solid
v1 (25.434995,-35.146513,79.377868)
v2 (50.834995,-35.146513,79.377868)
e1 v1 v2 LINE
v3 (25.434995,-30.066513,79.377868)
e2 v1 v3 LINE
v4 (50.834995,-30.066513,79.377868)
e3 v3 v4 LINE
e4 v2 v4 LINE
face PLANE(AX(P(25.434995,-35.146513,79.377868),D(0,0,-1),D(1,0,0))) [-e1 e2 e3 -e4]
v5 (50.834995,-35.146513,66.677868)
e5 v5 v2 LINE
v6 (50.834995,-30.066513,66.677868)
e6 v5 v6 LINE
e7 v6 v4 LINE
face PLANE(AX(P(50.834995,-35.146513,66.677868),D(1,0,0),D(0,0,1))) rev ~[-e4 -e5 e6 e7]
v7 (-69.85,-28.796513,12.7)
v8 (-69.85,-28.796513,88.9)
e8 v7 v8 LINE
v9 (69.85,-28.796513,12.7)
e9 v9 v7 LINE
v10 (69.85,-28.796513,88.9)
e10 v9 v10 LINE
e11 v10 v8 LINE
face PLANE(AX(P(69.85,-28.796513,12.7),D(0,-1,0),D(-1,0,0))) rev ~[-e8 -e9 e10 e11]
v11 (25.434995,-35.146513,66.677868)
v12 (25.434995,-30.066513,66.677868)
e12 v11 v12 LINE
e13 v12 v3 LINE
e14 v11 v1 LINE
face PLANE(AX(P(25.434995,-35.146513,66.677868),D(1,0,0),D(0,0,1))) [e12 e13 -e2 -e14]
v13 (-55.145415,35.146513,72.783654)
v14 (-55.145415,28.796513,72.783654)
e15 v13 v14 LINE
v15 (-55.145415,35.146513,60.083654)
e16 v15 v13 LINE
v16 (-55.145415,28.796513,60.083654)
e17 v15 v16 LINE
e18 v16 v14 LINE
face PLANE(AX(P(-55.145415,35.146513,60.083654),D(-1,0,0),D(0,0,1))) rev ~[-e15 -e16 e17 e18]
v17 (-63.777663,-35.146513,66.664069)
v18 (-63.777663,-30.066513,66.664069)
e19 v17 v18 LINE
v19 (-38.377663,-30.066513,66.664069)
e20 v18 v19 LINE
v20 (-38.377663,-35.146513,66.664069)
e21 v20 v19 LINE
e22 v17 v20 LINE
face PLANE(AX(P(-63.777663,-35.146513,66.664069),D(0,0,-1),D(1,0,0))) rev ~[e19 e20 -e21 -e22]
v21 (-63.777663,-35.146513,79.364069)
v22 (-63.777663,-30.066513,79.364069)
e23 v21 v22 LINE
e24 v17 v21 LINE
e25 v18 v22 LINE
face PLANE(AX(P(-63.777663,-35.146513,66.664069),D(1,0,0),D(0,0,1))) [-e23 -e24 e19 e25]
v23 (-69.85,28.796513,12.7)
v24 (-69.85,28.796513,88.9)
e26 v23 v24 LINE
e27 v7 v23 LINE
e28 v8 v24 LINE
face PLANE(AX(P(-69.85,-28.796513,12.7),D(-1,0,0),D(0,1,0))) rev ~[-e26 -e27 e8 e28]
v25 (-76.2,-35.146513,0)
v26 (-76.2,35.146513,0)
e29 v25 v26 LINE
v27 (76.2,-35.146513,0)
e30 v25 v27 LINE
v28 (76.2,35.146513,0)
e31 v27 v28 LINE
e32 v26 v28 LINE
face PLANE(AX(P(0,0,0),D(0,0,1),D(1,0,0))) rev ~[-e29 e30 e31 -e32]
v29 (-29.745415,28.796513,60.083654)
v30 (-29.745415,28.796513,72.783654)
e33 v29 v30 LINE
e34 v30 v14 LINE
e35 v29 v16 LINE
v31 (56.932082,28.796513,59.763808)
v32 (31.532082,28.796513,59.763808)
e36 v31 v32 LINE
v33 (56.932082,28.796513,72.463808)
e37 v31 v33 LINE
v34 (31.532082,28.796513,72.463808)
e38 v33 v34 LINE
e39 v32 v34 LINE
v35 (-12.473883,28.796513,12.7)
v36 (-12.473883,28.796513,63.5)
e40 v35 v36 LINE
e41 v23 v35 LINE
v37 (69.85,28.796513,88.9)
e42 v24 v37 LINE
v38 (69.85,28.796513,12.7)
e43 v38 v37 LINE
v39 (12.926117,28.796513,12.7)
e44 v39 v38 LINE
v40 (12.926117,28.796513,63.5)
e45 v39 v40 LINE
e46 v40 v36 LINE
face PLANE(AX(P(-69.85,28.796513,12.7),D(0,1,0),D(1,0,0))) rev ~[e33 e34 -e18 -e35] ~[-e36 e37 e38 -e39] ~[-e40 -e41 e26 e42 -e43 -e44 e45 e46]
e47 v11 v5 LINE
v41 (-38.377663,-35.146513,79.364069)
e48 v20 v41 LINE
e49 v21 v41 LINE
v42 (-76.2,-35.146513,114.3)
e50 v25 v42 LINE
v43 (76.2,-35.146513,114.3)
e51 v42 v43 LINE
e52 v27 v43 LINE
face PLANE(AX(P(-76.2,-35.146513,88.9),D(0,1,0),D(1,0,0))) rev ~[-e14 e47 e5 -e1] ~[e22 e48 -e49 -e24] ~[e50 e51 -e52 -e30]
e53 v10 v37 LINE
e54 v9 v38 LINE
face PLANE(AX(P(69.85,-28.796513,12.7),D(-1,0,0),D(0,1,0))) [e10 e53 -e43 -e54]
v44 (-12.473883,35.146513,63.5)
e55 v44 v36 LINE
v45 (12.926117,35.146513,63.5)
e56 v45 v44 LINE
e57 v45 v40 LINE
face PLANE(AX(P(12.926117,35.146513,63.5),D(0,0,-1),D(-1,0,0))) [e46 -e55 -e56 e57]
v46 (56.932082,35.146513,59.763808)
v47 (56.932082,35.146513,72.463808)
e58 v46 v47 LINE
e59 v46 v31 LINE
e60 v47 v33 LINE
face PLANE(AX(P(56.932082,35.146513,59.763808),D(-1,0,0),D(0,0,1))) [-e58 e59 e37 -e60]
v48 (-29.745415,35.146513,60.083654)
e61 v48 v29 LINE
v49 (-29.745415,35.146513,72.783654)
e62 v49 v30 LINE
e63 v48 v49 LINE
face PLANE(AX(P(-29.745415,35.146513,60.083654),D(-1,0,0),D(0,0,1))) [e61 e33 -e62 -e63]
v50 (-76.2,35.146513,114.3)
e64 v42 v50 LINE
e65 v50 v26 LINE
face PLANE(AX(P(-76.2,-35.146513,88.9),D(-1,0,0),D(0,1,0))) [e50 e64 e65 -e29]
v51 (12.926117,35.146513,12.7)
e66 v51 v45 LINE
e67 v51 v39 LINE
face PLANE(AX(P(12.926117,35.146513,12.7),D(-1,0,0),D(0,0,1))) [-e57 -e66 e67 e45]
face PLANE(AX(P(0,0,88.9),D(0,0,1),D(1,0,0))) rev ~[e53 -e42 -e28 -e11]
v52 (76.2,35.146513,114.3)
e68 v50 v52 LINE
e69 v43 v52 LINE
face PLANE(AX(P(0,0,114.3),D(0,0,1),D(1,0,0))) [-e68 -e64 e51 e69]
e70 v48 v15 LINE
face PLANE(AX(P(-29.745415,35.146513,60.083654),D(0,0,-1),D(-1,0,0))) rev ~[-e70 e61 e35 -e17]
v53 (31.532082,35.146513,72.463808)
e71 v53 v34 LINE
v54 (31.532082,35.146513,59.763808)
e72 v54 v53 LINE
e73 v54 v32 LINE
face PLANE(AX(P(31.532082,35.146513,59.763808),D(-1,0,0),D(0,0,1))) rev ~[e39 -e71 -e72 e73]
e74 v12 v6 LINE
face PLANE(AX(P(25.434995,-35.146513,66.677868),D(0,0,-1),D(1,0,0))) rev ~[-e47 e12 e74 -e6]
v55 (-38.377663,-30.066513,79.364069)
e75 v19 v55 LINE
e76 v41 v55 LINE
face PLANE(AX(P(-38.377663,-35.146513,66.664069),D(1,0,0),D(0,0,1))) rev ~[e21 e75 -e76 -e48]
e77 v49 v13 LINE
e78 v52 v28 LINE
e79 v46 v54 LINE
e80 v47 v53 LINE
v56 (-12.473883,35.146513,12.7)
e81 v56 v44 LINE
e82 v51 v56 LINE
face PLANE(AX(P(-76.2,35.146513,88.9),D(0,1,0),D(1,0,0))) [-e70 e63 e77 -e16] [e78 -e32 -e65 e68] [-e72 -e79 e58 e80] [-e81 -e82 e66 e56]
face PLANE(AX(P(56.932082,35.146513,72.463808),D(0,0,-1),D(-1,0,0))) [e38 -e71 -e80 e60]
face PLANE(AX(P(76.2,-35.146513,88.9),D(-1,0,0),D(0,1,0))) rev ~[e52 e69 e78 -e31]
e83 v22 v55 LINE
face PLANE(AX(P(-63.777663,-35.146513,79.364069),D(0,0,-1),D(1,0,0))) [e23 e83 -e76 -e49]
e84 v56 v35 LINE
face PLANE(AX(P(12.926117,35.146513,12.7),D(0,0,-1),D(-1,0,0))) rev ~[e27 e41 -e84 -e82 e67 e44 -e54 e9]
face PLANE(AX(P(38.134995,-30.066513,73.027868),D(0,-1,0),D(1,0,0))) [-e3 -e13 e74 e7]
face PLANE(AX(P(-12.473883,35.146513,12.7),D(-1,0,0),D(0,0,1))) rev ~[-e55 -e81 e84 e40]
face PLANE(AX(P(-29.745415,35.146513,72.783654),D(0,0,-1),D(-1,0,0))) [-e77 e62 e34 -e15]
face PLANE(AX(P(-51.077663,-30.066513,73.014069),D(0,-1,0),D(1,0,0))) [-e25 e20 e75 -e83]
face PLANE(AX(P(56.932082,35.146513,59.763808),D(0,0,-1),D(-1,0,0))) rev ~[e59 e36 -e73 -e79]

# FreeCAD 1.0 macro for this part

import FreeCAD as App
import Part
import Sketcher
from FreeCAD import Vector
Q = App.Units.Quantity

doc = App.newDocument("Part")
body = doc.addObject("PartDesign::Body", "Body")

sketch1 = body.newObject("Sketcher::SketchObject", "Sketch")
sketch1.AttachmentSupport = (doc.getObject("XY_Plane"), [""])
sketch1.MapMode = "FlatFace"
sketch1.addGeometry([
    Part.LineSegment(Vector(-76, 35, 0), Vector(-76, -35, 0)),
    Part.LineSegment(Vector(-76, -35, 0), Vector(76, -35, 0)),
    Part.LineSegment(Vector(76, -35, 0), Vector(76, 35, 0)),
    Part.LineSegment(Vector(76, 35, 0), Vector(-76, 35, 0)),
], False)
sketch1.addConstraint([
    Sketcher.Constraint("Coincident", 0, 2, 1, 1),
    Sketcher.Constraint("Coincident", 1, 2, 2, 1),
    Sketcher.Constraint("Coincident", 2, 2, 3, 1),
    Sketcher.Constraint("Coincident", 3, 2, 0, 1),
    Sketcher.Constraint("Vertical", 0),
    Sketcher.Constraint("Horizontal", 1),
    Sketcher.Constraint("Vertical", 2),
    Sketcher.Constraint("Horizontal", 3),
    Sketcher.Constraint("Symmetric", 0, 2, 2, 2, -1, 1),
    Sketcher.Constraint("DistanceX", 1, 1, 1, 2, Q("6 in")),
    Sketcher.Constraint("DistanceY", 0, 2, 0, 1, 70.293026),
])
pad1 = body.newObject("PartDesign::Pad", "Pad")
pad1.Profile = sketch1
pad1.Length = Q("0.5 in")

sketch2 = body.newObject("Sketcher::SketchObject", "Sketch001")
sketch2.AttachmentSupport = (doc.getObject("XY_Plane"), [""])
sketch2.MapMode = "FlatFace"
sketch2.AttachmentOffset = App.Placement(Vector(0, 0, 0.5 * 25.4), App.Rotation())
sketch2.addGeometry([
    Part.LineSegment(Vector(-76, 35, 0), Vector(-76, -35, 0)),
    Part.LineSegment(Vector(-76, -35, 0), Vector(76, -35, 0)),
    Part.LineSegment(Vector(76, -35, 0), Vector(76, 35, 0)),
    Part.LineSegment(Vector(76, 35, 0), Vector(-76, 35, 0)),
    Part.LineSegment(Vector(70, -29, 0), Vector(-70, -29, 0)),
    Part.LineSegment(Vector(-70, -29, 0), Vector(-70, 29, 0)),
    Part.LineSegment(Vector(-70, 29, 0), Vector(70, 29, 0)),
    Part.LineSegment(Vector(70, 29, 0), Vector(70, -29, 0)),
], False)
sketch2.addConstraint([
    Sketcher.Constraint("Coincident", 0, 2, 1, 1),
    Sketcher.Constraint("Coincident", 1, 2, 2, 1),
    Sketcher.Constraint("Coincident", 2, 2, 3, 1),
    Sketcher.Constraint("Coincident", 3, 2, 0, 1),
    Sketcher.Constraint("Coincident", 4, 2, 5, 1),
    Sketcher.Constraint("Coincident", 5, 2, 6, 1),
    Sketcher.Constraint("Coincident", 6, 2, 7, 1),
    Sketcher.Constraint("Coincident", 7, 2, 4, 1),
    Sketcher.Constraint("Vertical", 0),
    Sketcher.Constraint("Horizontal", 1),
    Sketcher.Constraint("Vertical", 2),
    Sketcher.Constraint("Horizontal", 3),
    Sketcher.Constraint("Horizontal", 4),
    Sketcher.Constraint("Vertical", 5),
    Sketcher.Constraint("Horizontal", 6),
    Sketcher.Constraint("Vertical", 7),
    Sketcher.Constraint("Symmetric", 0, 2, 2, 2, -1, 1),
    Sketcher.Constraint("Symmetric", 4, 2, 6, 2, -1, 1),
    Sketcher.Constraint("DistanceX", 1, 1, 1, 2, Q("6 in")),
    Sketcher.Constraint("DistanceX", 4, 2, 4, 1, Q("5.5 in")),
    Sketcher.Constraint("DistanceY", 0, 2, 4, 2, Q("0.25 in")),
    Sketcher.Constraint("DistanceY", 0, 2, 0, 1, 70.293026),
])
pad2 = body.newObject("PartDesign::Pad", "Pad001")
pad2.Profile = sketch2
pad2.Length = Q("3 in")

sketch3 = body.newObject("Sketcher::SketchObject", "Sketch002")
sketch3.AttachmentSupport = (doc.getObject("XZ_Plane"), [""])
sketch3.MapMode = "FlatFace"
sketch3.AttachmentOffset = App.Placement(Vector(0, 0, -35.146513), App.Rotation())
sketch3.addGeometry([
    Part.LineSegment(Vector(13, 64, 0), Vector(13, 13, 0)),
    Part.LineSegment(Vector(13, 13, 0), Vector(-12, 13, 0)),
    Part.LineSegment(Vector(-12, 13, 0), Vector(-12, 64, 0)),
    Part.LineSegment(Vector(-12, 64, 0), Vector(13, 64, 0)),
    Part.LineSegment(Vector(57, 72, 0), Vector(57, 60, 0)),
    Part.LineSegment(Vector(57, 60, 0), Vector(32, 60, 0)),
    Part.LineSegment(Vector(32, 60, 0), Vector(32, 72, 0)),
    Part.LineSegment(Vector(32, 72, 0), Vector(57, 72, 0)),
    Part.LineSegment(Vector(-30, 73, 0), Vector(-30, 60, 0)),
    Part.LineSegment(Vector(-30, 60, 0), Vector(-55, 60, 0)),
    Part.LineSegment(Vector(-55, 60, 0), Vector(-55, 73, 0)),
    Part.LineSegment(Vector(-55, 73, 0), Vector(-30, 73, 0)),
], False)
sketch3.addConstraint([
    Sketcher.Constraint("Coincident", 0, 2, 1, 1),
    Sketcher.Constraint("Coincident", 1, 2, 2, 1),
    Sketcher.Constraint("Coincident", 2, 2, 3, 1),
    Sketcher.Constraint("Coincident", 3, 2, 0, 1),
    Sketcher.Constraint("Coincident", 4, 2, 5, 1),
    Sketcher.Constraint("Coincident", 5, 2, 6, 1),
    Sketcher.Constraint("Coincident", 6, 2, 7, 1),
    Sketcher.Constraint("Coincident", 7, 2, 4, 1),
    Sketcher.Constraint("Coincident", 8, 2, 9, 1),
    Sketcher.Constraint("Coincident", 9, 2, 10, 1),
    Sketcher.Constraint("Coincident", 10, 2, 11, 1),
    Sketcher.Constraint("Coincident", 11, 2, 8, 1),
    Sketcher.Constraint("Vertical", 0),
    Sketcher.Constraint("Horizontal", 1),
    Sketcher.Constraint("Vertical", 2),
    Sketcher.Constraint("Horizontal", 3),
    Sketcher.Constraint("Vertical", 4),
    Sketcher.Constraint("Horizontal", 5),
    Sketcher.Constraint("Vertical", 6),
    Sketcher.Constraint("Horizontal", 7),
    Sketcher.Constraint("Vertical", 8),
    Sketcher.Constraint("Horizontal", 9),
    Sketcher.Constraint("Vertical", 10),
    Sketcher.Constraint("Horizontal", 11),
    Sketcher.Constraint("Equal", 3, 5),
    Sketcher.Constraint("Equal", 7, 9),
    Sketcher.Constraint("Equal", 6, 8),
    Sketcher.Constraint("DistanceX", 1, 2, 1, 1, Q("1 in")),
    Sketcher.Constraint("DistanceY", 0, 2, 0, 1, Q("2 in")),
    Sketcher.Constraint("DistanceY", 4, 2, 4, 1, Q("0.5 in")),
    Sketcher.Constraint("DistanceY", -1, 1, 0, 2, Q("0.5 in")),
    Sketcher.Constraint("DistanceX", 8, 2, 5, 2, Q("2.4124999 in")),
    Sketcher.Constraint("DistanceX", -1, 1, 5, 2, 31.532082),
    Sketcher.Constraint("DistanceY", -1, 1, 6, 2, 72.463808),
    Sketcher.Constraint("DistanceX", -1, 1, 0, 2, 12.926117),
    Sketcher.Constraint("DistanceY", -1, 1, 8, 2, 60.083654),
])
pocket1 = body.newObject("PartDesign::Pocket", "Pocket")
pocket1.Profile = sketch3
pocket1.Length = Q("0.25 in")
pocket1.Reversed = True

sketch4 = body.newObject("Sketcher::SketchObject", "Sketch003")
sketch4.AttachmentSupport = (doc.getObject("XZ_Plane"), [""])
sketch4.MapMode = "FlatFace"
sketch4.AttachmentOffset = App.Placement(Vector(0, 0, 35.146513), App.Rotation())
sketch4.addGeometry([
    Part.LineSegment(Vector(-64, 79, 0), Vector(-64, 67, 0)),
    Part.LineSegment(Vector(-64, 67, 0), Vector(-38, 67, 0)),
    Part.LineSegment(Vector(-38, 67, 0), Vector(-38, 79, 0)),
    Part.LineSegment(Vector(-38, 79, 0), Vector(-64, 79, 0)),
    Part.LineSegment(Vector(25, 79, 0), Vector(25, 67, 0)),
    Part.LineSegment(Vector(25, 67, 0), Vector(51, 67, 0)),
    Part.LineSegment(Vector(51, 67, 0), Vector(51, 79, 0)),
    Part.LineSegment(Vector(51, 79, 0), Vector(25, 79, 0)),
], False)
sketch4.addConstraint([
    Sketcher.Constraint("Coincident", 0, 2, 1, 1),
    Sketcher.Constraint("Coincident", 1, 2, 2, 1),
    Sketcher.Constraint("Coincident", 2, 2, 3, 1),
    Sketcher.Constraint("Coincident", 3, 2, 0, 1),
    Sketcher.Constraint("Coincident", 4, 2, 5, 1),
    Sketcher.Constraint("Coincident", 5, 2, 6, 1),
    Sketcher.Constraint("Coincident", 6, 2, 7, 1),
    Sketcher.Constraint("Coincident", 7, 2, 4, 1),
    Sketcher.Constraint("Vertical", 0),
    Sketcher.Constraint("Horizontal", 1),
    Sketcher.Constraint("Vertical", 2),
    Sketcher.Constraint("Horizontal", 3),
    Sketcher.Constraint("Vertical", 4),
    Sketcher.Constraint("Horizontal", 5),
    Sketcher.Constraint("Vertical", 6),
    Sketcher.Constraint("Horizontal", 7),
    Sketcher.Constraint("Equal", 3, 5),
    Sketcher.Constraint("Equal", 2, 4),
    Sketcher.Constraint("DistanceX", 1, 1, 1, 2, Q("1 in")),
    Sketcher.Constraint("DistanceY", 0, 2, 0, 1, Q("0.5 in")),
    Sketcher.Constraint("DistanceY", 1, 2, 4, 2, 0.013799),
    Sketcher.Constraint("DistanceY", -1, 1, 0, 2, 66.664069),
    Sketcher.Constraint("DistanceX", 0, 2, 4, 2, 89.212658),
    Sketcher.Constraint("DistanceX", 0, 2, -1, 1, 63.777663),
])
pocket2 = body.newObject("PartDesign::Pocket", "Pocket001")
pocket2.Profile = sketch4
pocket2.Length = Q("0.2 in")

sketch5 = body.newObject("Sketcher::SketchObject", "Sketch004")
sketch5.AttachmentSupport = (doc.getObject("XY_Plane"), [""])
sketch5.MapMode = "FlatFace"
sketch5.AttachmentOffset = App.Placement(Vector(0, 0, 3.5 * 25.4), App.Rotation())
sketch5.addGeometry([
    Part.LineSegment(Vector(-76, 35, 0), Vector(-76, -35, 0)),
    Part.LineSegment(Vector(-76, -35, 0), Vector(76, -35, 0)),
    Part.LineSegment(Vector(76, -35, 0), Vector(76, 35, 0)),
    Part.LineSegment(Vector(76, 35, 0), Vector(-76, 35, 0)),
], False)
sketch5.addConstraint([
    Sketcher.Constraint("Coincident", 0, 2, 1, 1),
    Sketcher.Constraint("Coincident", 1, 2, 2, 1),
    Sketcher.Constraint("Coincident", 2, 2, 3, 1),
    Sketcher.Constraint("Coincident", 3, 2, 0, 1),
    Sketcher.Constraint("Vertical", 0),
    Sketcher.Constraint("Horizontal", 1),
    Sketcher.Constraint("Vertical", 2),
    Sketcher.Constraint("Horizontal", 3),
    Sketcher.Constraint("Symmetric", 0, 2, 2, 2, -1, 1),
    Sketcher.Constraint("DistanceX", 1, 1, 1, 2, Q("6 in")),
    Sketcher.Constraint("DistanceY", 0, 2, 0, 1, 70.293026),
])
pad3 = body.newObject("PartDesign::Pad", "Pad002")
pad3.Profile = sketch5
pad3.Length = Q("1 in")

doc.recompute()
